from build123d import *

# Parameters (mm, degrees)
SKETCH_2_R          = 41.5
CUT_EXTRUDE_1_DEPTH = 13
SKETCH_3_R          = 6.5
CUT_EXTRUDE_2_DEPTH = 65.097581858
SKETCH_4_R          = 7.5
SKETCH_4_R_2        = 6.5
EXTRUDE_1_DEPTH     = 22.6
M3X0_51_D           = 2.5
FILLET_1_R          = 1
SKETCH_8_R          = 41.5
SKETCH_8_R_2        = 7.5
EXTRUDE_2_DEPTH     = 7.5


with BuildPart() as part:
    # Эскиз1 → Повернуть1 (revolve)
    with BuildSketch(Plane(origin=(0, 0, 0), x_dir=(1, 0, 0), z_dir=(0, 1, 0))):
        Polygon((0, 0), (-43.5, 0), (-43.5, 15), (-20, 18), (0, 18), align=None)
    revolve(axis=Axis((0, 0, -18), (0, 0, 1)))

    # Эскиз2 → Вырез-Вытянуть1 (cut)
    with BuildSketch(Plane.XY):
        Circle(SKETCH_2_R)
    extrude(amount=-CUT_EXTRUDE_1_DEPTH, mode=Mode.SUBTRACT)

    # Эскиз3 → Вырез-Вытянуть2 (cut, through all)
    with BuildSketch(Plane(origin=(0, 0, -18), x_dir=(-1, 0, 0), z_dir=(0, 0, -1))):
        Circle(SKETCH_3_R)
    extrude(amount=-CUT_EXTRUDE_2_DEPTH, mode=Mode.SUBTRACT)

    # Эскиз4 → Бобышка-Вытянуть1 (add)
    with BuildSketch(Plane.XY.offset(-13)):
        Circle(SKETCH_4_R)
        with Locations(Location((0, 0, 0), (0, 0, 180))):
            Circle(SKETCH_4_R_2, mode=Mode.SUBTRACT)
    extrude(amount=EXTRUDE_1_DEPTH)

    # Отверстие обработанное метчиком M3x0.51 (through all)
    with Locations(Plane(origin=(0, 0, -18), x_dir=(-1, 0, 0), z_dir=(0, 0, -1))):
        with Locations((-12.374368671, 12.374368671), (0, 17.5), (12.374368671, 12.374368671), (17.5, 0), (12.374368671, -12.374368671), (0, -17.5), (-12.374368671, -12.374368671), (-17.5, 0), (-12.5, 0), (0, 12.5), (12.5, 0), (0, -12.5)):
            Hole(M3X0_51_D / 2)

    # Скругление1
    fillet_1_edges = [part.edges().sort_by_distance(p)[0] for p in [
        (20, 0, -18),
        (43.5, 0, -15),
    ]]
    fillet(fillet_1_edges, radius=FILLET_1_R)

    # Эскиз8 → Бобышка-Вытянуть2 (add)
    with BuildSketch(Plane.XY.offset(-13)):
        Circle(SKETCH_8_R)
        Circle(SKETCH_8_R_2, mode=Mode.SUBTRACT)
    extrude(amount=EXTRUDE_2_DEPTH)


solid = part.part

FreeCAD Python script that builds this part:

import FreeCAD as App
import Part
import Sketcher
from FreeCAD import Vector
Q = App.Units.Quantity


def edges_at(feature, points):
    """Names of the edges that pass closest to the given points."""
    edges = feature.Shape.Edges
    near = lambda p: min(range(len(edges)), key=lambda i: edges[i].distToShape(Part.Vertex(*p))[0])
    return sorted({f"Edge{near(p) + 1}" for p in points})


def add_polygon(sketch, points):
    """Adds a closed chain of lines whose ends are joined by coincident constraints."""
    first, n = sketch.GeometryCount, len(points)
    for a, b in zip(points, points[1:] + points[:1]):
        sketch.addGeometry(Part.LineSegment(App.Vector(*a, 0), App.Vector(*b, 0)), False)
    for i in range(n):
        sketch.addConstraint(Sketcher.Constraint("Coincident", first + i, 2, first + (i + 1) % n, 1))

doc = App.newDocument("Part")
body = doc.addObject("PartDesign::Body", "Body")

# Sketch on XZ plane
sketch1 = body.newObject("Sketcher::SketchObject", "Sketch")
sketch1.AttachmentSupport = (doc.getObject("XZ_Plane"), [""])
sketch1.MapMode = "FlatFace"
add_polygon(sketch1, [(-44, 0), (0, 0), (0, -18), (-20, -18), (-44, -15)])  # lines 0-4
sketch1.addConstraint([
    Sketcher.Constraint("Horizontal", 0),
    Sketcher.Constraint("Vertical", 1),
    Sketcher.Constraint("Horizontal", 2),
    Sketcher.Constraint("Vertical", 4),
    Sketcher.Constraint("Coincident", 0, 2, -1, 1),
    Sketcher.Constraint("DistanceX", 2, 2, 2, 1, Q("20 mm")),
    Sketcher.Constraint("DistanceY", 1, 2, 1, 1, Q("18 mm")),
    Sketcher.Constraint("DistanceY", 4, 1, 4, 2, Q("15 mm")),
    Sketcher.Constraint("DistanceX", 0, 1, 0, 2, Q("43.5 mm")),
])
revolution = body.newObject("PartDesign::Revolution", "Revolution")
revolution.Profile = sketch1
revolution.ReferenceAxis = (sketch1, ["V_Axis"])
revolution.Angle = 360

# Sketch on XY plane
sketch2 = body.newObject("Sketcher::SketchObject", "Sketch001")
sketch2.AttachmentSupport = (doc.getObject("XY_Plane"), [""])
sketch2.MapMode = "FlatFace"
sketch2.addGeometry(Part.Circle(Vector(0, 0, 0), Vector(0, 0, 1), 42), False)
sketch2.addConstraint([
    Sketcher.Constraint("Coincident", 0, 3, -1, 1),
    Sketcher.Constraint("Diameter", 0, Q("83 mm")),
])
pocket1 = body.newObject("PartDesign::Pocket", "Pocket")
pocket1.Profile = sketch2
pocket1.Length = 13

# Sketch on XY plane
sketch3 = body.newObject("Sketcher::SketchObject", "Sketch002")
sketch3.AttachmentSupport = (doc.getObject("XY_Plane"), [""])
sketch3.MapMode = "FlatFace"
sketch3.AttachmentOffset = App.Placement(Vector(0, 0, -18), App.Rotation())
sketch3.addGeometry(Part.Circle(Vector(0, 0, 0), Vector(0, 0, 1), 6), False)
sketch3.addConstraint([
    Sketcher.Constraint("Coincident", 0, 3, -1, 1),
    Sketcher.Constraint("Diameter", 0, Q("13 mm")),
])
pocket2 = body.newObject("PartDesign::Pocket", "Pocket001")
pocket2.Profile = sketch3
pocket2.Type = "ThroughAll"
pocket2.Reversed = True

# Sketch on XY plane
sketch4 = body.newObject("Sketcher::SketchObject", "Sketch003")
sketch4.AttachmentSupport = (doc.getObject("XY_Plane"), [""])
sketch4.MapMode = "FlatFace"
sketch4.AttachmentOffset = App.Placement(Vector(0, 0, -13), App.Rotation())
sketch4.addGeometry([
    Part.Circle(Vector(0, 0, 0), Vector(0, 0, 1), 8),
    Part.Circle(Vector(0, 0, 0), Vector(0, 0, 1), 6),
], False)
sketch4.addConstraint([
    Sketcher.Constraint("Coincident", 0, 3, -1, 1),
    Sketcher.Constraint("Coincident", 1, 3, -1, 1),
    Sketcher.Constraint("Diameter", 0, Q("15 mm")),
    Sketcher.Constraint("Diameter", 1, Q("13 mm")),
])
pad1 = body.newObject("PartDesign::Pad", "Pad")
pad1.Profile = sketch4
pad1.Length = 22.6

# Sketch on XY plane
sketch5 = body.newObject("Sketcher::SketchObject", "Sketch004")
sketch5.AttachmentSupport = (doc.getObject("XY_Plane"), [""])
sketch5.MapMode = "FlatFace"
sketch5.AttachmentOffset = App.Placement(Vector(0, 0, -18), App.Rotation())
sketch5.addGeometry([
    Part.Circle(Vector(12.4, 12.4, 0), Vector(0, 0, 1), 1.2),  # 0
    Part.Circle(Vector(0, 17.5, 0), Vector(0, 0, 1), 1.2),  # 1
    Part.Circle(Vector(-12.4, 12.4, 0), Vector(0, 0, 1), 1.2),  # 2
    Part.Circle(Vector(-17.5, 0, 0), Vector(0, 0, 1), 1.2),  # 3
    Part.Circle(Vector(-12.4, -12.4, 0), Vector(0, 0, 1), 1.2),  # 4
    Part.Circle(Vector(0, -17.5, 0), Vector(0, 0, 1), 1.2),  # 5
    Part.Circle(Vector(12.4, -12.4, 0), Vector(0, 0, 1), 1.2),  # 6
    Part.Circle(Vector(17.5, 0, 0), Vector(0, 0, 1), 1.2),  # 7
    Part.Circle(Vector(12.5, 0, 0), Vector(0, 0, 1), 1.2),  # 8
    Part.Circle(Vector(0, 12.5, 0), Vector(0, 0, 1), 1.2),  # 9
    Part.Circle(Vector(-12.5, 0, 0), Vector(0, 0, 1), 1.2),  # 10
    Part.Circle(Vector(0, -12.5, 0), Vector(0, 0, 1), 1.2),  # 11
], False)
sketch5.addConstraint([
    Sketcher.Constraint("Equal", 0, 1),
    Sketcher.Constraint("Equal", 1, 2),
    Sketcher.Constraint("Equal", 2, 3),
    Sketcher.Constraint("Equal", 3, 4),
    Sketcher.Constraint("Equal", 4, 5),
    Sketcher.Constraint("Equal", 5, 6),
    Sketcher.Constraint("Equal", 6, 7),
    Sketcher.Constraint("Equal", 7, 8),
    Sketcher.Constraint("Equal", 8, 9),
    Sketcher.Constraint("Equal", 9, 10),
    Sketcher.Constraint("Equal", 10, 11),
    Sketcher.Constraint("Symmetric", 0, 3, 4, 3, -1, 1),
    Sketcher.Constraint("Symmetric", 1, 3, 5, 3, -1, 1),
    Sketcher.Constraint("Symmetric", 2, 3, 6, 3, -1, 1),
    Sketcher.Constraint("Symmetric", 3, 3, 7, 3, -1, 1),
    Sketcher.Constraint("Symmetric", 8, 3, 10, 3, -1, 1),
    Sketcher.Constraint("Symmetric", 9, 3, 11, 3, -1, 1),
    Sketcher.Constraint("Symmetric", 0, 3, 2, 3, -2),
    Sketcher.Constraint("PointOnObject", 1, 3, -2),
    Sketcher.Constraint("PointOnObject", 3, 3, -1),
    Sketcher.Constraint("PointOnObject", 8, 3, -1),
    Sketcher.Constraint("PointOnObject", 9, 3, -2),
    Sketcher.Constraint("Diameter", 0, Q("2.5 mm")),
    Sketcher.Constraint("DistanceY", 5, 3, 1, 3, Q("35 mm")),
    Sketcher.Constraint("DistanceX", 8, 3, 7, 3, Q("5 mm")),
    Sketcher.Constraint("DistanceY", 9, 3, 1, 3, Q("5 mm")),
    Sketcher.Constraint("DistanceX", 3, 3, -1, 1, Q("17.5 mm")),
    Sketcher.Constraint("DistanceX", -1, 1, 0, 3, Q("12.374369 mm")),
    Sketcher.Constraint("DistanceY", -1, 1, 0, 3, Q("12.374369 mm")),
])
doc.recompute()
hole = body.newObject("PartDesign::Hole", "Hole")
hole.Profile = sketch5
hole.ThreadType = "None"
hole.Diameter = 2.5
hole.DepthType = "ThroughAll"
hole.Reversed = True
doc.recompute()

fillet = body.newObject("PartDesign::Fillet", "Fillet")
fillet.Base = (hole, edges_at(hole, [(20, 0, -18), (43.5, 0, -15)]))
fillet.Radius = 1

# Sketch on XY plane
sketch6 = body.newObject("Sketcher::SketchObject", "Sketch005")
sketch6.AttachmentSupport = (doc.getObject("XY_Plane"), [""])
sketch6.MapMode = "FlatFace"
sketch6.AttachmentOffset = App.Placement(Vector(0, 0, -13), App.Rotation())
sketch6.addGeometry([
    Part.Circle(Vector(0, 0, 0), Vector(0, 0, 1), 42),
    Part.Circle(Vector(0, 0, 0), Vector(0, 0, 1), 8),
], False)
sketch6.addConstraint([
    Sketcher.Constraint("Coincident", 0, 3, -1, 1),
    Sketcher.Constraint("Coincident", 1, 3, -1, 1),
    Sketcher.Constraint("Diameter", 0, Q("83 mm")),
    Sketcher.Constraint("Diameter", 1, Q("15 mm")),
])
pad2 = body.newObject("PartDesign::Pad", "Pad001")
pad2.Profile = sketch6
pad2.Length = 7.5

doc.recompute()
